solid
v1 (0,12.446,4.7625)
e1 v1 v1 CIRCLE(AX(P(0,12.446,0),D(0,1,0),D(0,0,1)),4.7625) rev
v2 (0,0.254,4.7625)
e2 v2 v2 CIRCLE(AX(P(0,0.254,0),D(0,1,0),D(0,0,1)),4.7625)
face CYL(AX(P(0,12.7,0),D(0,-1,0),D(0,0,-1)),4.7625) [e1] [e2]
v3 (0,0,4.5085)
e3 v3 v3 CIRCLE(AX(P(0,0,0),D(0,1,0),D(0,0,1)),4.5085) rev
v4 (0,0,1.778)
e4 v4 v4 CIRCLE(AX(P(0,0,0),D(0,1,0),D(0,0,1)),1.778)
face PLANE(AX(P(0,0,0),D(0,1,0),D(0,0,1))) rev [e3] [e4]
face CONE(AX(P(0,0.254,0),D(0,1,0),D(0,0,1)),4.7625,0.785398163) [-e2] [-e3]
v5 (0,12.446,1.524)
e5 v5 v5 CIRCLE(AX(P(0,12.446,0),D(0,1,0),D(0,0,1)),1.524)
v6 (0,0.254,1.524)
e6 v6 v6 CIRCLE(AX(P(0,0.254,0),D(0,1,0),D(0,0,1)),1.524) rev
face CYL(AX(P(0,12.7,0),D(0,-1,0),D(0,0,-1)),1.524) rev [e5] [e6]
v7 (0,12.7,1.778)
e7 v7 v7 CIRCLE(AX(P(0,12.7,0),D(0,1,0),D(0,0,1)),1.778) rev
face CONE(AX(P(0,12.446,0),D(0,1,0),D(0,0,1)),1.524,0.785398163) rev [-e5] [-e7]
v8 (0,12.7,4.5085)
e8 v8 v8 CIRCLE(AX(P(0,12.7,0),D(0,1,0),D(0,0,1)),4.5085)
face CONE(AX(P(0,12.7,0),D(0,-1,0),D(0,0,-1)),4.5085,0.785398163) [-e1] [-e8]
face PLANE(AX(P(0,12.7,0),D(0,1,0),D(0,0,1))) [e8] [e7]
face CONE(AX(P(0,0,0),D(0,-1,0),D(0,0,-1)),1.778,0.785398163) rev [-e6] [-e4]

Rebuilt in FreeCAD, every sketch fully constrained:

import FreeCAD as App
import Part
import Sketcher

V = App.Vector
Q = App.Units.Quantity


def edges_at(feature, points):
    """Names of the edges that pass closest to the given points."""
    edges = feature.Shape.Edges
    near = lambda p: min(range(len(edges)), key=lambda i: edges[i].distToShape(Part.Vertex(*p))[0])
    return sorted({f"Edge{near(p) + 1}" for p in points})

doc = App.newDocument("Part")
body = doc.addObject("PartDesign::Body", "Body")

sketch1 = body.newObject("Sketcher::SketchObject", "Sketch")
sketch1.AttachmentSupport = (doc.getObject("XZ_Plane"), [""])
sketch1.MapMode = "FlatFace"
sketch1.addGeometry([
    Part.Circle(V(0, 0, 0), V(0, 0, 1), 4.8),
    Part.Circle(V(0, 0, 0), V(0, 0, 1), 1.5),
], False)
sketch1.addConstraint([
    Sketcher.Constraint("Coincident", 0, 3, -1, 1),
    Sketcher.Constraint("Coincident", 1, 3, -1, 1),
    Sketcher.Constraint("Diameter", 1, Q("0.12 in")),
    Sketcher.Constraint("Diameter", 0, Q("0.375 in")),
])
pad1 = body.newObject("PartDesign::Pad", "Pad")
pad1.Profile = sketch1
pad1.Length = Q("0.5 in")
pad1.Reversed = True
doc.recompute()

chamfer = body.newObject("PartDesign::Chamfer", "Chamfer")
chamfer.Base = (pad1, edges_at(pad1, [
    (0, 0, -4.763),
    (0, 12.7, -4.763),
    (0, 0, -1.524),
    (0, 12.7, -1.524),
]))
chamfer.Size = Q("0.01 in")

doc.recompute()
